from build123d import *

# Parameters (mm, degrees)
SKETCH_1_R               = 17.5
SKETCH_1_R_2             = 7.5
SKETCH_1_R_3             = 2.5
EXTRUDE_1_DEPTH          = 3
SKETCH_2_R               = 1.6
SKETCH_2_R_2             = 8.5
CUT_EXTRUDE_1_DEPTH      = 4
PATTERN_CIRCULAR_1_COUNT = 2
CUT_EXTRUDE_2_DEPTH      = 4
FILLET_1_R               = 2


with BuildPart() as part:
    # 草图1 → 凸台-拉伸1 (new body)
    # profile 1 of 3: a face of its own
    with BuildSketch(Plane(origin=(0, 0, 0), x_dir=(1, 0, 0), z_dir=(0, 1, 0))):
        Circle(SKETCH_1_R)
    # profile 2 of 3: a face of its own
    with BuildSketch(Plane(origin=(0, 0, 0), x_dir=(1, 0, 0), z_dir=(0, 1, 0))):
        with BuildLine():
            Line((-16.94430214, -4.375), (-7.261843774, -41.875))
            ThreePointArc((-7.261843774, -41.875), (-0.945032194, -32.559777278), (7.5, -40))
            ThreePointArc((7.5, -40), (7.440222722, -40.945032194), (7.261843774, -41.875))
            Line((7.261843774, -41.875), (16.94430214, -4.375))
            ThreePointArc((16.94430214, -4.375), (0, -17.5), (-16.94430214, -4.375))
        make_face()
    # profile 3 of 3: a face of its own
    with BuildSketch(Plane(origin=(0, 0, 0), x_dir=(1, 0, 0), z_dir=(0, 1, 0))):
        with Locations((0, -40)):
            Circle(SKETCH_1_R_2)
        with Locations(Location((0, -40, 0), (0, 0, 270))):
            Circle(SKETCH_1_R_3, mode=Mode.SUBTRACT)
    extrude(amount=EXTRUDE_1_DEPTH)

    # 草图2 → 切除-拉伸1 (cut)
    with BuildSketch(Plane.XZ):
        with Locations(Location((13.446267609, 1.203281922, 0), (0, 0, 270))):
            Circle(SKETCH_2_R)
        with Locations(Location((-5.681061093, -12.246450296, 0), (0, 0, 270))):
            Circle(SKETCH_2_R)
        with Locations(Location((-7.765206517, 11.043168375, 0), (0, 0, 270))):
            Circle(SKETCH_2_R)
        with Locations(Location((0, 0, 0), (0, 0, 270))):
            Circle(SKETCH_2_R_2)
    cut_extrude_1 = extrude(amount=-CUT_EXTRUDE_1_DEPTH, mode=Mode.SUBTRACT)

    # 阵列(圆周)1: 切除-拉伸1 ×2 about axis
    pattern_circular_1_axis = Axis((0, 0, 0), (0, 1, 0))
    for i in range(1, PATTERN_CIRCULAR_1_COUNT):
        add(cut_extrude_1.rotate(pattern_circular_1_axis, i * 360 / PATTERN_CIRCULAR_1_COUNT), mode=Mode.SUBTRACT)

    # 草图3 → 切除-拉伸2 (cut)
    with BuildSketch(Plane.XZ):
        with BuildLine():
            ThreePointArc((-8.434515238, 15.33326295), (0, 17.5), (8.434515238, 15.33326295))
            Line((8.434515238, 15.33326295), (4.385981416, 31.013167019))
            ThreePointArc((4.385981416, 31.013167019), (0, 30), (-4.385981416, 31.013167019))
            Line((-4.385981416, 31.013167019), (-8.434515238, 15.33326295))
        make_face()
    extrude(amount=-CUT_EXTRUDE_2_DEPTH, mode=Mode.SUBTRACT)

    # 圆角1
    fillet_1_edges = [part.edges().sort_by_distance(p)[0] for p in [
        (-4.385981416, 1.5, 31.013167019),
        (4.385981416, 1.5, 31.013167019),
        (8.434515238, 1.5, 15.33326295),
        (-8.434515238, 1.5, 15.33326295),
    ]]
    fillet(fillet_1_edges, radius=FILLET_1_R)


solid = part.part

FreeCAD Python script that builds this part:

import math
import FreeCAD as App
import Part
import Sketcher
from FreeCAD import Vector
Q = App.Units.Quantity


def edges_at(feature, points):
    """Names of the edges that pass closest to the given points."""
    edges = feature.Shape.Edges
    near = lambda p: min(range(len(edges)), key=lambda i: edges[i].distToShape(Part.Vertex(*p))[0])
    return sorted({f"Edge{near(p) + 1}" for p in points})

doc = App.newDocument("Part")
body = doc.addObject("PartDesign::Body", "Body")

# Sketch on XZ plane
sketch1 = body.newObject("Sketcher::SketchObject", "Sketch")
sketch1.AttachmentSupport = (doc.getObject("XZ_Plane"), [""])
sketch1.MapMode = "FlatFace"
sketch1.addGeometry([
    Part.LineSegment(Vector(-16.9, 4.4, 0), Vector(-7.3, 41.9, 0)),  # 0
    Part.ArcOfCircle(Part.Circle(Vector(0, 40, 0), Vector(0, 0, 1), 7.5), math.radians(14), math.radians(166)),  # 1
    Part.LineSegment(Vector(7.3, 41.9, 0), Vector(16.9, 4.4, 0)),  # 2
    Part.ArcOfCircle(Part.Circle(Vector(0, 0, 0), Vector(0, 0, 1), 17.5), math.radians(166), math.radians(374)),  # 3
    Part.Circle(Vector(0, 40, 0), Vector(0, 0, 1), 2.5),  # 4
], False)
sketch1.addConstraint([
    Sketcher.Constraint("Tangent", 0, 2, 1, 2),
    Sketcher.Constraint("Tangent", 1, 1, 2, 1),
    Sketcher.Constraint("Tangent", 2, 2, 3, 2),
    Sketcher.Constraint("Tangent", 3, 1, 0, 1),
    Sketcher.Constraint("Coincident", 3, 3, -1, 1),
    Sketcher.Constraint("Coincident", 4, 3, 1, 3),
    Sketcher.Constraint("PointOnObject", 1, 3, -2),
    Sketcher.Constraint("Diameter", 4, Q("5 mm")),
    Sketcher.Constraint("Radius", 1, Q("7.5 mm")),
    Sketcher.Constraint("Radius", 3, Q("17.5 mm")),
    Sketcher.Constraint("DistanceY", -1, 1, 1, 3, Q("40 mm")),
])
pad1 = body.newObject("PartDesign::Pad", "Pad")
pad1.Profile = sketch1
pad1.Length = 3
pad1.Reversed = True

# Sketch on XZ plane
sketch2 = body.newObject("Sketcher::SketchObject", "Sketch001")
sketch2.AttachmentSupport = (doc.getObject("XZ_Plane"), [""])
sketch2.MapMode = "FlatFace"
sketch2.addGeometry([
    Part.Circle(Vector(13.4, 1.2, 0), Vector(0, 0, 1), 1.6),
    Part.Circle(Vector(-5.7, -12.2, 0), Vector(0, 0, 1), 1.6),
    Part.Circle(Vector(-7.8, 11, 0), Vector(0, 0, 1), 1.6),
    Part.Circle(Vector(0, 0, 0), Vector(0, 0, 1), 8.5),
], False)
sketch2.addConstraint([
    Sketcher.Constraint("Coincident", 3, 3, -1, 1),
    Sketcher.Constraint("Equal", 0, 1),
    Sketcher.Constraint("Equal", 1, 2),
    Sketcher.Constraint("Diameter", 3, Q("17 mm")),
    Sketcher.Constraint("Diameter", 0, Q("3.2 mm")),
    Sketcher.Constraint("DistanceY", -1, 1, 0, 3, Q("1.203282 mm")),
    Sketcher.Constraint("DistanceX", 1, 3, -1, 1, Q("5.681061 mm")),
    Sketcher.Constraint("DistanceY", 1, 3, -1, 1, Q("12.24645 mm")),
    Sketcher.Constraint("DistanceY", -1, 1, 2, 3, Q("11.043168 mm")),
    Sketcher.Constraint("DistanceX", 1, 3, 0, 3, Q("19.127329 mm")),
    Sketcher.Constraint("DistanceX", 2, 3, -1, 1, Q("7.765207 mm")),
])
pocket1 = body.newObject("PartDesign::Pocket", "Pocket")
pocket1.Profile = sketch2
pocket1.Length = 4
doc.recompute()

polarpattern = body.newObject("PartDesign::PolarPattern", "PolarPattern")
polarpattern.Originals = [pocket1]
polarpattern.Axis = (doc.getObject("Y_Axis"), [""])
polarpattern.Angle = 360
polarpattern.Occurrences = 2
body.Tip = polarpattern

# Sketch on XZ plane
sketch3 = body.newObject("Sketcher::SketchObject", "Sketch002")
sketch3.AttachmentSupport = (doc.getObject("XZ_Plane"), [""])
sketch3.MapMode = "FlatFace"
sketch3.addGeometry([
    Part.ArcOfCircle(Part.Circle(Vector(0, 0, 0), Vector(0, 0, 1), 17), math.radians(61), math.radians(119)),
    Part.LineSegment(Vector(8, 15, 0), Vector(4, 31, 0)),
    Part.ArcOfCircle(Part.Circle(Vector(0, 40, 0), Vector(0, 0, 1), 10), math.radians(-116), math.radians(-64)),
    Part.LineSegment(Vector(-4, 31, 0), Vector(-8, 15, 0)),
], False)
sketch3.addConstraint([
    Sketcher.Constraint("Coincident", 0, 1, 1, 1),
    Sketcher.Constraint("Coincident", 1, 2, 2, 2),
    Sketcher.Constraint("Coincident", 2, 1, 3, 1),
    Sketcher.Constraint("Coincident", 3, 2, 0, 2),
    Sketcher.Constraint("Coincident", 0, 3, -1, 1),
    Sketcher.Constraint("Symmetric", 1, 2, 2, 1, -2),
    Sketcher.Constraint("Horizontal", 0, 1, 3, 2),
    Sketcher.Constraint("Radius", 2, Q("10 mm")),
    Sketcher.Constraint("Radius", 0, Q("17.5 mm")),
    Sketcher.Constraint("DistanceY", -1, 1, 2, 3, Q("40 mm")),
    Sketcher.Constraint("DistanceX", -1, 1, 1, 2, Q("4.385981 mm")),
    Sketcher.Constraint("DistanceX", 3, 2, 0, 1, Q("16.86903 mm")),
])
pocket2 = body.newObject("PartDesign::Pocket", "Pocket001")
pocket2.Profile = sketch3
pocket2.Length = 4
doc.recompute()

fillet = body.newObject("PartDesign::Fillet", "Fillet")
fillet.Base = (pocket2, edges_at(pocket2, [
    (-4.386, 1.5, 31.013),
    (4.386, 1.5, 31.013),
    (8.435, 1.5, 15.333),
    (-8.435, 1.5, 15.333),
]))
fillet.Radius = 2

doc.recompute()
